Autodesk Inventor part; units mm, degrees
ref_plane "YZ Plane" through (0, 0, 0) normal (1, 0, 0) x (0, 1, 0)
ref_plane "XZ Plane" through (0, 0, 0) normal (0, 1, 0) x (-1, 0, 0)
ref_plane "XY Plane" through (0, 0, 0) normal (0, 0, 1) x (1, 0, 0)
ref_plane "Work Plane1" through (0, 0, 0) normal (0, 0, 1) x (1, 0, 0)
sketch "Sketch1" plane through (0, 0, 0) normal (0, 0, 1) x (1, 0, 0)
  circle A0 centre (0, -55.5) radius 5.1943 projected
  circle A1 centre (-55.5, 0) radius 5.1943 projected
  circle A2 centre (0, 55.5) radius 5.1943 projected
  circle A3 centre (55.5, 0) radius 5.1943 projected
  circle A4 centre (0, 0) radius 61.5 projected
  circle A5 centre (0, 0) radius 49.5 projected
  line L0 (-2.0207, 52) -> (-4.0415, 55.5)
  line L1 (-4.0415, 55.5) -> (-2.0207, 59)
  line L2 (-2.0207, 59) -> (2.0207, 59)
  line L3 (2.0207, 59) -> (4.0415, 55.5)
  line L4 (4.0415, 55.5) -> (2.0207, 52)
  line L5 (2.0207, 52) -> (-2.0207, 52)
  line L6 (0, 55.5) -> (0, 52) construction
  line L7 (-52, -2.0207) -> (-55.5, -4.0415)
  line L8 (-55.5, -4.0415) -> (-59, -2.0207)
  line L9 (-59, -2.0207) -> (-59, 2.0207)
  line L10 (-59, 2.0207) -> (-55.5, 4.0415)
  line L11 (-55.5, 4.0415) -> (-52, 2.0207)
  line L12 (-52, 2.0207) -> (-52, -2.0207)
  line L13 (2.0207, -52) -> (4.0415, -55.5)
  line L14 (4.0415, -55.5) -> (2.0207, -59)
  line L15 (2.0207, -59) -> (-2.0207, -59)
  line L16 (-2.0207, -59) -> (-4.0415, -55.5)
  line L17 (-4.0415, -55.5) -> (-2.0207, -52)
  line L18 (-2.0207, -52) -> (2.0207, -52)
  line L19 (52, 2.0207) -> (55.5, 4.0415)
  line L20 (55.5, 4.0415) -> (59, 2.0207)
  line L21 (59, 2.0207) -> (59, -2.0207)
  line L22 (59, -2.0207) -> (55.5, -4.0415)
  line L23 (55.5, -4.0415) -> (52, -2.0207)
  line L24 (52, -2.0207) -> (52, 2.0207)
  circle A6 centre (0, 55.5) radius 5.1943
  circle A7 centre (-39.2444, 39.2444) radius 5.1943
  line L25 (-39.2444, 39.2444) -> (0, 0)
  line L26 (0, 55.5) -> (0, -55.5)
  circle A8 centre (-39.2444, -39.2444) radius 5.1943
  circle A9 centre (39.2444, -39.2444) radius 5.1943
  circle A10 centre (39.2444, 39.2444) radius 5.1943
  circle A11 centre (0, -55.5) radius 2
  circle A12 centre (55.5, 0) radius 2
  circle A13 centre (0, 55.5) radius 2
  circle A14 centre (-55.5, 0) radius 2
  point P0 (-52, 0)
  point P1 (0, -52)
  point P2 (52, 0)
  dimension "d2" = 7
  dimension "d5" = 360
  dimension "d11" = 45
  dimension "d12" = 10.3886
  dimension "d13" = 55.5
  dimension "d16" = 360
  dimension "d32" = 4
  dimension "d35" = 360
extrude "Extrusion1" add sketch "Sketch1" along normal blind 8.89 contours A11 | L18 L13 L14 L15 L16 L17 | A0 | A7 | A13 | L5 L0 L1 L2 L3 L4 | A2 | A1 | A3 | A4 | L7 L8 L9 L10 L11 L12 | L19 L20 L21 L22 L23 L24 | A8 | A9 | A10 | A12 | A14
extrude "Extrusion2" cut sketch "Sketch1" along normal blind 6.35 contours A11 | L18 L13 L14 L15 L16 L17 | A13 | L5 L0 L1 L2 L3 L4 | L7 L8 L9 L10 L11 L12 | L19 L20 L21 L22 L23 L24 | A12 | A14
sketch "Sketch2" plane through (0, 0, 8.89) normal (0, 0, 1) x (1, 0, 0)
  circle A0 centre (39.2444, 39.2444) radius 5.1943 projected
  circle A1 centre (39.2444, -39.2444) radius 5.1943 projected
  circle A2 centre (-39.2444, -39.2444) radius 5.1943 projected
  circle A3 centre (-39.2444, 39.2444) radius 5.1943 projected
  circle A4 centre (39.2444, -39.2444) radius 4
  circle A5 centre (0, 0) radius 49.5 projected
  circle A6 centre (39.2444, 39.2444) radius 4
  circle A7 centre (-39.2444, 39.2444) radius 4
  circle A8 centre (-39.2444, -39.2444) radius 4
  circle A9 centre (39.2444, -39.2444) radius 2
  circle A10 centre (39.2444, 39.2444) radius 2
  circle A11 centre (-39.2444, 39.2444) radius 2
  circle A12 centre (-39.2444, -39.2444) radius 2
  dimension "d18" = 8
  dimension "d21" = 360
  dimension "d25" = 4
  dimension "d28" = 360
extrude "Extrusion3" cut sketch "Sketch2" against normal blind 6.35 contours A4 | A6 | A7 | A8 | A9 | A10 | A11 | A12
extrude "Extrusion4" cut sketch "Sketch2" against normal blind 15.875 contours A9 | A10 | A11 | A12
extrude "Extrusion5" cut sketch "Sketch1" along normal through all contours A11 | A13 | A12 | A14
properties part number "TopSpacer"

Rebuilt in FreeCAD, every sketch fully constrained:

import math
import FreeCAD as App
import Part
import Sketcher
from FreeCAD import Vector
Q = App.Units.Quantity


def add_polygon(sketch, points):
    """Adds a closed chain of lines whose ends are joined by coincident constraints."""
    first, n = sketch.GeometryCount, len(points)
    for a, b in zip(points, points[1:] + points[:1]):
        sketch.addGeometry(Part.LineSegment(App.Vector(*a, 0), App.Vector(*b, 0)), False)
    for i in range(n):
        sketch.addConstraint(Sketcher.Constraint("Coincident", first + i, 2, first + (i + 1) % n, 1))

doc = App.newDocument("Part")
body = doc.addObject("PartDesign::Body", "Body")

# Sketch on XY plane
sketch1 = doc.addObject("Sketcher::SketchObject", "Sketch")
body.addObject(sketch1)
sketch1.AttachmentSupport = (doc.XY_Plane, [""])
sketch1.MapMode = "FlatFace"
sketch1.addGeometry([
    Part.Circle(Vector(0, 0, 0), Vector(0, 0, 1), 62),
    Part.ArcOfCircle(Part.Circle(Vector(0, 0, 0), Vector(0, 0, 1), 50), math.radians(135), math.radians(270)),
    Part.ArcOfCircle(Part.Circle(Vector(0, 0, 0), Vector(0, 0, 1), 50), math.radians(90), math.radians(135)),
    Part.ArcOfCircle(Part.Circle(Vector(0, 0, 0), Vector(0, 0, 1), 50), math.radians(-90), math.radians(90)),
], False)
sketch1.addConstraint([
    Sketcher.Constraint("Tangent", 1, 1, 2, 2),
    Sketcher.Constraint("Tangent", 2, 1, 3, 2),
    Sketcher.Constraint("Tangent", 3, 1, 1, 2),
    Sketcher.Constraint("Coincident", 0, 3, -1, 1),
    Sketcher.Constraint("Coincident", 1, 3, -1, 1),
    Sketcher.Constraint("PointOnObject", 2, 1, -2),
    Sketcher.Constraint("PointOnObject", 3, 1, -2),
    Sketcher.Constraint("Diameter", 0, Q("123 mm")),
    Sketcher.Constraint("Radius", 1, Q("49.5 mm")),
    Sketcher.Constraint("DistanceX", 1, 1, -1, 1, Q("35.0018 mm")),
])
pad1 = doc.addObject("PartDesign::Pad", "Pad")
body.addObject(pad1)
pad1.Profile = sketch1
pad1.Length = 8.89

# Sketch on XY plane
sketch2 = doc.addObject("Sketcher::SketchObject", "Sketch001")
body.addObject(sketch2)
sketch2.AttachmentSupport = (doc.XY_Plane, [""])
sketch2.MapMode = "FlatFace"
add_polygon(sketch2, [(2, -52), (0, -52), (-2, -52), (-4, -55.5), (-2, -59), (2, -59), (4, -55.5)])  # lines 0-6
add_polygon(sketch2, [(-2, 52), (0, 52), (2, 52), (4, 55.5), (2, 59), (-2, 59), (-4, 55.5)])  # lines 7-13
add_polygon(sketch2, [(-55.5, -4), (-52, -2), (-52, 2), (-55.5, 4), (-59, 2), (-59, -2)])  # lines 14-19
add_polygon(sketch2, [(55.5, 4), (52, 2), (52, -2), (55.5, -4), (59, -2), (59, 2)])  # lines 20-25
sketch2.addConstraint([
    Sketcher.Constraint("Horizontal", 0),
    Sketcher.Constraint("Horizontal", 1),
    Sketcher.Constraint("Horizontal", 4),
    Sketcher.Constraint("Horizontal", 7),
    Sketcher.Constraint("Horizontal", 8),
    Sketcher.Constraint("Horizontal", 11),
    Sketcher.Constraint("Vertical", 15),
    Sketcher.Constraint("Vertical", 18),
    Sketcher.Constraint("Vertical", 21),
    Sketcher.Constraint("Vertical", 24),
    Sketcher.Constraint("Symmetric", 0, 2, 7, 2, -1, 1),
    Sketcher.Constraint("Symmetric", 2, 2, 9, 2, -1, 1),
    Sketcher.Constraint("Symmetric", 3, 2, 10, 2, -1, 1),
    Sketcher.Constraint("Symmetric", 5, 2, 12, 2, -1, 1),
    Sketcher.Constraint("Symmetric", 14, 2, 20, 2, -1, 1),
    Sketcher.Constraint("Symmetric", 16, 2, 22, 2, -1, 1),
    Sketcher.Constraint("Symmetric", 17, 2, 23, 2, -1, 1),
    Sketcher.Constraint("Symmetric", 19, 2, 25, 2, -1, 1),
    Sketcher.Constraint("Symmetric", 2, 2, 5, 2, -2),
    Sketcher.Constraint("Symmetric", 19, 2, 22, 2, -2),
    Sketcher.Constraint("PointOnObject", 0, 2, -2),
    Sketcher.Constraint("Parallel", 2, 5),
    Sketcher.Constraint("Parallel", 3, 6),
    Sketcher.Constraint("Parallel", 5, 9),
    Sketcher.Constraint("Parallel", 9, 12),
    Sketcher.Constraint("Parallel", 10, 13),
    Sketcher.Constraint("Perpendicular", 13, 14),
    Sketcher.Constraint("Perpendicular", 12, 16),
    Sketcher.Constraint("Parallel", 14, 17),
    Sketcher.Constraint("Parallel", 16, 19),
    Sketcher.Constraint("Parallel", 19, 22),
    Sketcher.Constraint("Parallel", 22, 25),
    Sketcher.Constraint("Horizontal", 15, 2, 17, 2),
    Sketcher.Constraint("Horizontal", 14, 2, 18, 2),
    Sketcher.Constraint("Vertical", 1, 2, 3, 2),
    Sketcher.Constraint("Equal", 11, 15),
    Sketcher.Constraint("Equal", 13, 14),
    Sketcher.Constraint("DistanceY", 3, 2, 1, 2, Q("7 mm")),
    Sketcher.Constraint("DistanceY", 2, 2, -1, 1, Q("55.5 mm")),
    Sketcher.Constraint("DistanceX", 16, 2, -1, 1, Q("55.5 mm")),
    Sketcher.Constraint("Angle", 2, Q("-120.001 deg")),
    Sketcher.Constraint("DistanceX", 0, 2, 0, 1, Q("2.0207 mm")),
])
pocket1 = doc.addObject("PartDesign::Pocket", "Pocket")
body.addObject(pocket1)
pocket1.Profile = sketch2
pocket1.Length = 6.35
pocket1.Reversed = True

# Sketch on XY plane
sketch3 = doc.addObject("Sketcher::SketchObject", "Sketch002")
body.addObject(sketch3)
sketch3.AttachmentSupport = (doc.XY_Plane, [""])
sketch3.MapMode = "FlatFace"
sketch3.AttachmentOffset = App.Placement(Vector(0, 0, 8.89), App.Rotation())
sketch3.addGeometry([
    Part.Circle(Vector(39.2, -39.2, 0), Vector(0, 0, 1), 4),
    Part.Circle(Vector(39.2, 39.2, 0), Vector(0, 0, 1), 4),
    Part.Circle(Vector(-39.2, 39.2, 0), Vector(0, 0, 1), 4),
    Part.Circle(Vector(-39.2, -39.2, 0), Vector(0, 0, 1), 4),
], False)
sketch3.addConstraint([
    Sketcher.Constraint("Equal", 0, 1),
    Sketcher.Constraint("Equal", 1, 2),
    Sketcher.Constraint("Equal", 2, 3),
    Sketcher.Constraint("Symmetric", 0, 3, 2, 3, -1, 1),
    Sketcher.Constraint("Symmetric", 1, 3, 3, 3, -1, 1),
    Sketcher.Constraint("Symmetric", 1, 3, 2, 3, -2),
    Sketcher.Constraint("Diameter", 0, Q("8 mm")),
    Sketcher.Constraint("DistanceX", -1, 1, 0, 3, Q("39.2444 mm")),
    Sketcher.Constraint("DistanceY", 0, 3, -1, 1, Q("39.2444 mm")),
])
pocket2 = doc.addObject("PartDesign::Pocket", "Pocket001")
body.addObject(pocket2)
pocket2.Profile = sketch3
pocket2.Length = 6.35

# Sketch on XY plane
sketch4 = doc.addObject("Sketcher::SketchObject", "Sketch003")
body.addObject(sketch4)
sketch4.AttachmentSupport = (doc.XY_Plane, [""])
sketch4.MapMode = "FlatFace"
sketch4.AttachmentOffset = App.Placement(Vector(0, 0, 8.89), App.Rotation())
sketch4.addGeometry([
    Part.Circle(Vector(39.2, -39.2, 0), Vector(0, 0, 1), 2),
    Part.Circle(Vector(39.2, 39.2, 0), Vector(0, 0, 1), 2),
    Part.Circle(Vector(-39.2, 39.2, 0), Vector(0, 0, 1), 2),
    Part.Circle(Vector(-39.2, -39.2, 0), Vector(0, 0, 1), 2),
], False)
sketch4.addConstraint([
    Sketcher.Constraint("Equal", 0, 1),
    Sketcher.Constraint("Equal", 1, 2),
    Sketcher.Constraint("Equal", 2, 3),
    Sketcher.Constraint("Symmetric", 0, 3, 2, 3, -1, 1),
    Sketcher.Constraint("Symmetric", 1, 3, 3, 3, -1, 1),
    Sketcher.Constraint("Symmetric", 1, 3, 2, 3, -2),
    Sketcher.Constraint("Diameter", 0, Q("4 mm")),
    Sketcher.Constraint("DistanceX", -1, 1, 0, 3, Q("39.2444 mm")),
    Sketcher.Constraint("DistanceY", 0, 3, -1, 1, Q("39.2444 mm")),
])
pocket3 = doc.addObject("PartDesign::Pocket", "Pocket002")
body.addObject(pocket3)
pocket3.Profile = sketch4
pocket3.Length = 15.875

# Sketch on XY plane
sketch5 = doc.addObject("Sketcher::SketchObject", "Sketch004")
body.addObject(sketch5)
sketch5.AttachmentSupport = (doc.XY_Plane, [""])
sketch5.MapMode = "FlatFace"
sketch5.addGeometry([
    Part.Circle(Vector(0, -55.5, 0), Vector(0, 0, 1), 2),
    Part.Circle(Vector(0, 55.5, 0), Vector(0, 0, 1), 2),
    Part.Circle(Vector(55.5, 0, 0), Vector(0, 0, 1), 2),
    Part.Circle(Vector(-55.5, 0, 0), Vector(0, 0, 1), 2),
], False)
sketch5.addConstraint([
    Sketcher.Constraint("Equal", 0, 1),
    Sketcher.Constraint("Equal", 1, 2),
    Sketcher.Constraint("Equal", 2, 3),
    Sketcher.Constraint("Symmetric", 0, 3, 1, 3, -1, 1),
    Sketcher.Constraint("Symmetric", 2, 3, 3, 3, -1, 1),
    Sketcher.Constraint("PointOnObject", 0, 3, -2),
    Sketcher.Constraint("PointOnObject", 2, 3, -1),
    Sketcher.Constraint("Diameter", 0, Q("4 mm")),
    Sketcher.Constraint("DistanceY", 0, 3, -1, 1, Q("55.5 mm")),
    Sketcher.Constraint("DistanceX", -1, 1, 2, 3, Q("55.5 mm")),
])
pocket4 = doc.addObject("PartDesign::Pocket", "Pocket003")
body.addObject(pocket4)
pocket4.Profile = sketch5
pocket4.Type = "ThroughAll"
pocket4.Reversed = True

doc.recompute()
